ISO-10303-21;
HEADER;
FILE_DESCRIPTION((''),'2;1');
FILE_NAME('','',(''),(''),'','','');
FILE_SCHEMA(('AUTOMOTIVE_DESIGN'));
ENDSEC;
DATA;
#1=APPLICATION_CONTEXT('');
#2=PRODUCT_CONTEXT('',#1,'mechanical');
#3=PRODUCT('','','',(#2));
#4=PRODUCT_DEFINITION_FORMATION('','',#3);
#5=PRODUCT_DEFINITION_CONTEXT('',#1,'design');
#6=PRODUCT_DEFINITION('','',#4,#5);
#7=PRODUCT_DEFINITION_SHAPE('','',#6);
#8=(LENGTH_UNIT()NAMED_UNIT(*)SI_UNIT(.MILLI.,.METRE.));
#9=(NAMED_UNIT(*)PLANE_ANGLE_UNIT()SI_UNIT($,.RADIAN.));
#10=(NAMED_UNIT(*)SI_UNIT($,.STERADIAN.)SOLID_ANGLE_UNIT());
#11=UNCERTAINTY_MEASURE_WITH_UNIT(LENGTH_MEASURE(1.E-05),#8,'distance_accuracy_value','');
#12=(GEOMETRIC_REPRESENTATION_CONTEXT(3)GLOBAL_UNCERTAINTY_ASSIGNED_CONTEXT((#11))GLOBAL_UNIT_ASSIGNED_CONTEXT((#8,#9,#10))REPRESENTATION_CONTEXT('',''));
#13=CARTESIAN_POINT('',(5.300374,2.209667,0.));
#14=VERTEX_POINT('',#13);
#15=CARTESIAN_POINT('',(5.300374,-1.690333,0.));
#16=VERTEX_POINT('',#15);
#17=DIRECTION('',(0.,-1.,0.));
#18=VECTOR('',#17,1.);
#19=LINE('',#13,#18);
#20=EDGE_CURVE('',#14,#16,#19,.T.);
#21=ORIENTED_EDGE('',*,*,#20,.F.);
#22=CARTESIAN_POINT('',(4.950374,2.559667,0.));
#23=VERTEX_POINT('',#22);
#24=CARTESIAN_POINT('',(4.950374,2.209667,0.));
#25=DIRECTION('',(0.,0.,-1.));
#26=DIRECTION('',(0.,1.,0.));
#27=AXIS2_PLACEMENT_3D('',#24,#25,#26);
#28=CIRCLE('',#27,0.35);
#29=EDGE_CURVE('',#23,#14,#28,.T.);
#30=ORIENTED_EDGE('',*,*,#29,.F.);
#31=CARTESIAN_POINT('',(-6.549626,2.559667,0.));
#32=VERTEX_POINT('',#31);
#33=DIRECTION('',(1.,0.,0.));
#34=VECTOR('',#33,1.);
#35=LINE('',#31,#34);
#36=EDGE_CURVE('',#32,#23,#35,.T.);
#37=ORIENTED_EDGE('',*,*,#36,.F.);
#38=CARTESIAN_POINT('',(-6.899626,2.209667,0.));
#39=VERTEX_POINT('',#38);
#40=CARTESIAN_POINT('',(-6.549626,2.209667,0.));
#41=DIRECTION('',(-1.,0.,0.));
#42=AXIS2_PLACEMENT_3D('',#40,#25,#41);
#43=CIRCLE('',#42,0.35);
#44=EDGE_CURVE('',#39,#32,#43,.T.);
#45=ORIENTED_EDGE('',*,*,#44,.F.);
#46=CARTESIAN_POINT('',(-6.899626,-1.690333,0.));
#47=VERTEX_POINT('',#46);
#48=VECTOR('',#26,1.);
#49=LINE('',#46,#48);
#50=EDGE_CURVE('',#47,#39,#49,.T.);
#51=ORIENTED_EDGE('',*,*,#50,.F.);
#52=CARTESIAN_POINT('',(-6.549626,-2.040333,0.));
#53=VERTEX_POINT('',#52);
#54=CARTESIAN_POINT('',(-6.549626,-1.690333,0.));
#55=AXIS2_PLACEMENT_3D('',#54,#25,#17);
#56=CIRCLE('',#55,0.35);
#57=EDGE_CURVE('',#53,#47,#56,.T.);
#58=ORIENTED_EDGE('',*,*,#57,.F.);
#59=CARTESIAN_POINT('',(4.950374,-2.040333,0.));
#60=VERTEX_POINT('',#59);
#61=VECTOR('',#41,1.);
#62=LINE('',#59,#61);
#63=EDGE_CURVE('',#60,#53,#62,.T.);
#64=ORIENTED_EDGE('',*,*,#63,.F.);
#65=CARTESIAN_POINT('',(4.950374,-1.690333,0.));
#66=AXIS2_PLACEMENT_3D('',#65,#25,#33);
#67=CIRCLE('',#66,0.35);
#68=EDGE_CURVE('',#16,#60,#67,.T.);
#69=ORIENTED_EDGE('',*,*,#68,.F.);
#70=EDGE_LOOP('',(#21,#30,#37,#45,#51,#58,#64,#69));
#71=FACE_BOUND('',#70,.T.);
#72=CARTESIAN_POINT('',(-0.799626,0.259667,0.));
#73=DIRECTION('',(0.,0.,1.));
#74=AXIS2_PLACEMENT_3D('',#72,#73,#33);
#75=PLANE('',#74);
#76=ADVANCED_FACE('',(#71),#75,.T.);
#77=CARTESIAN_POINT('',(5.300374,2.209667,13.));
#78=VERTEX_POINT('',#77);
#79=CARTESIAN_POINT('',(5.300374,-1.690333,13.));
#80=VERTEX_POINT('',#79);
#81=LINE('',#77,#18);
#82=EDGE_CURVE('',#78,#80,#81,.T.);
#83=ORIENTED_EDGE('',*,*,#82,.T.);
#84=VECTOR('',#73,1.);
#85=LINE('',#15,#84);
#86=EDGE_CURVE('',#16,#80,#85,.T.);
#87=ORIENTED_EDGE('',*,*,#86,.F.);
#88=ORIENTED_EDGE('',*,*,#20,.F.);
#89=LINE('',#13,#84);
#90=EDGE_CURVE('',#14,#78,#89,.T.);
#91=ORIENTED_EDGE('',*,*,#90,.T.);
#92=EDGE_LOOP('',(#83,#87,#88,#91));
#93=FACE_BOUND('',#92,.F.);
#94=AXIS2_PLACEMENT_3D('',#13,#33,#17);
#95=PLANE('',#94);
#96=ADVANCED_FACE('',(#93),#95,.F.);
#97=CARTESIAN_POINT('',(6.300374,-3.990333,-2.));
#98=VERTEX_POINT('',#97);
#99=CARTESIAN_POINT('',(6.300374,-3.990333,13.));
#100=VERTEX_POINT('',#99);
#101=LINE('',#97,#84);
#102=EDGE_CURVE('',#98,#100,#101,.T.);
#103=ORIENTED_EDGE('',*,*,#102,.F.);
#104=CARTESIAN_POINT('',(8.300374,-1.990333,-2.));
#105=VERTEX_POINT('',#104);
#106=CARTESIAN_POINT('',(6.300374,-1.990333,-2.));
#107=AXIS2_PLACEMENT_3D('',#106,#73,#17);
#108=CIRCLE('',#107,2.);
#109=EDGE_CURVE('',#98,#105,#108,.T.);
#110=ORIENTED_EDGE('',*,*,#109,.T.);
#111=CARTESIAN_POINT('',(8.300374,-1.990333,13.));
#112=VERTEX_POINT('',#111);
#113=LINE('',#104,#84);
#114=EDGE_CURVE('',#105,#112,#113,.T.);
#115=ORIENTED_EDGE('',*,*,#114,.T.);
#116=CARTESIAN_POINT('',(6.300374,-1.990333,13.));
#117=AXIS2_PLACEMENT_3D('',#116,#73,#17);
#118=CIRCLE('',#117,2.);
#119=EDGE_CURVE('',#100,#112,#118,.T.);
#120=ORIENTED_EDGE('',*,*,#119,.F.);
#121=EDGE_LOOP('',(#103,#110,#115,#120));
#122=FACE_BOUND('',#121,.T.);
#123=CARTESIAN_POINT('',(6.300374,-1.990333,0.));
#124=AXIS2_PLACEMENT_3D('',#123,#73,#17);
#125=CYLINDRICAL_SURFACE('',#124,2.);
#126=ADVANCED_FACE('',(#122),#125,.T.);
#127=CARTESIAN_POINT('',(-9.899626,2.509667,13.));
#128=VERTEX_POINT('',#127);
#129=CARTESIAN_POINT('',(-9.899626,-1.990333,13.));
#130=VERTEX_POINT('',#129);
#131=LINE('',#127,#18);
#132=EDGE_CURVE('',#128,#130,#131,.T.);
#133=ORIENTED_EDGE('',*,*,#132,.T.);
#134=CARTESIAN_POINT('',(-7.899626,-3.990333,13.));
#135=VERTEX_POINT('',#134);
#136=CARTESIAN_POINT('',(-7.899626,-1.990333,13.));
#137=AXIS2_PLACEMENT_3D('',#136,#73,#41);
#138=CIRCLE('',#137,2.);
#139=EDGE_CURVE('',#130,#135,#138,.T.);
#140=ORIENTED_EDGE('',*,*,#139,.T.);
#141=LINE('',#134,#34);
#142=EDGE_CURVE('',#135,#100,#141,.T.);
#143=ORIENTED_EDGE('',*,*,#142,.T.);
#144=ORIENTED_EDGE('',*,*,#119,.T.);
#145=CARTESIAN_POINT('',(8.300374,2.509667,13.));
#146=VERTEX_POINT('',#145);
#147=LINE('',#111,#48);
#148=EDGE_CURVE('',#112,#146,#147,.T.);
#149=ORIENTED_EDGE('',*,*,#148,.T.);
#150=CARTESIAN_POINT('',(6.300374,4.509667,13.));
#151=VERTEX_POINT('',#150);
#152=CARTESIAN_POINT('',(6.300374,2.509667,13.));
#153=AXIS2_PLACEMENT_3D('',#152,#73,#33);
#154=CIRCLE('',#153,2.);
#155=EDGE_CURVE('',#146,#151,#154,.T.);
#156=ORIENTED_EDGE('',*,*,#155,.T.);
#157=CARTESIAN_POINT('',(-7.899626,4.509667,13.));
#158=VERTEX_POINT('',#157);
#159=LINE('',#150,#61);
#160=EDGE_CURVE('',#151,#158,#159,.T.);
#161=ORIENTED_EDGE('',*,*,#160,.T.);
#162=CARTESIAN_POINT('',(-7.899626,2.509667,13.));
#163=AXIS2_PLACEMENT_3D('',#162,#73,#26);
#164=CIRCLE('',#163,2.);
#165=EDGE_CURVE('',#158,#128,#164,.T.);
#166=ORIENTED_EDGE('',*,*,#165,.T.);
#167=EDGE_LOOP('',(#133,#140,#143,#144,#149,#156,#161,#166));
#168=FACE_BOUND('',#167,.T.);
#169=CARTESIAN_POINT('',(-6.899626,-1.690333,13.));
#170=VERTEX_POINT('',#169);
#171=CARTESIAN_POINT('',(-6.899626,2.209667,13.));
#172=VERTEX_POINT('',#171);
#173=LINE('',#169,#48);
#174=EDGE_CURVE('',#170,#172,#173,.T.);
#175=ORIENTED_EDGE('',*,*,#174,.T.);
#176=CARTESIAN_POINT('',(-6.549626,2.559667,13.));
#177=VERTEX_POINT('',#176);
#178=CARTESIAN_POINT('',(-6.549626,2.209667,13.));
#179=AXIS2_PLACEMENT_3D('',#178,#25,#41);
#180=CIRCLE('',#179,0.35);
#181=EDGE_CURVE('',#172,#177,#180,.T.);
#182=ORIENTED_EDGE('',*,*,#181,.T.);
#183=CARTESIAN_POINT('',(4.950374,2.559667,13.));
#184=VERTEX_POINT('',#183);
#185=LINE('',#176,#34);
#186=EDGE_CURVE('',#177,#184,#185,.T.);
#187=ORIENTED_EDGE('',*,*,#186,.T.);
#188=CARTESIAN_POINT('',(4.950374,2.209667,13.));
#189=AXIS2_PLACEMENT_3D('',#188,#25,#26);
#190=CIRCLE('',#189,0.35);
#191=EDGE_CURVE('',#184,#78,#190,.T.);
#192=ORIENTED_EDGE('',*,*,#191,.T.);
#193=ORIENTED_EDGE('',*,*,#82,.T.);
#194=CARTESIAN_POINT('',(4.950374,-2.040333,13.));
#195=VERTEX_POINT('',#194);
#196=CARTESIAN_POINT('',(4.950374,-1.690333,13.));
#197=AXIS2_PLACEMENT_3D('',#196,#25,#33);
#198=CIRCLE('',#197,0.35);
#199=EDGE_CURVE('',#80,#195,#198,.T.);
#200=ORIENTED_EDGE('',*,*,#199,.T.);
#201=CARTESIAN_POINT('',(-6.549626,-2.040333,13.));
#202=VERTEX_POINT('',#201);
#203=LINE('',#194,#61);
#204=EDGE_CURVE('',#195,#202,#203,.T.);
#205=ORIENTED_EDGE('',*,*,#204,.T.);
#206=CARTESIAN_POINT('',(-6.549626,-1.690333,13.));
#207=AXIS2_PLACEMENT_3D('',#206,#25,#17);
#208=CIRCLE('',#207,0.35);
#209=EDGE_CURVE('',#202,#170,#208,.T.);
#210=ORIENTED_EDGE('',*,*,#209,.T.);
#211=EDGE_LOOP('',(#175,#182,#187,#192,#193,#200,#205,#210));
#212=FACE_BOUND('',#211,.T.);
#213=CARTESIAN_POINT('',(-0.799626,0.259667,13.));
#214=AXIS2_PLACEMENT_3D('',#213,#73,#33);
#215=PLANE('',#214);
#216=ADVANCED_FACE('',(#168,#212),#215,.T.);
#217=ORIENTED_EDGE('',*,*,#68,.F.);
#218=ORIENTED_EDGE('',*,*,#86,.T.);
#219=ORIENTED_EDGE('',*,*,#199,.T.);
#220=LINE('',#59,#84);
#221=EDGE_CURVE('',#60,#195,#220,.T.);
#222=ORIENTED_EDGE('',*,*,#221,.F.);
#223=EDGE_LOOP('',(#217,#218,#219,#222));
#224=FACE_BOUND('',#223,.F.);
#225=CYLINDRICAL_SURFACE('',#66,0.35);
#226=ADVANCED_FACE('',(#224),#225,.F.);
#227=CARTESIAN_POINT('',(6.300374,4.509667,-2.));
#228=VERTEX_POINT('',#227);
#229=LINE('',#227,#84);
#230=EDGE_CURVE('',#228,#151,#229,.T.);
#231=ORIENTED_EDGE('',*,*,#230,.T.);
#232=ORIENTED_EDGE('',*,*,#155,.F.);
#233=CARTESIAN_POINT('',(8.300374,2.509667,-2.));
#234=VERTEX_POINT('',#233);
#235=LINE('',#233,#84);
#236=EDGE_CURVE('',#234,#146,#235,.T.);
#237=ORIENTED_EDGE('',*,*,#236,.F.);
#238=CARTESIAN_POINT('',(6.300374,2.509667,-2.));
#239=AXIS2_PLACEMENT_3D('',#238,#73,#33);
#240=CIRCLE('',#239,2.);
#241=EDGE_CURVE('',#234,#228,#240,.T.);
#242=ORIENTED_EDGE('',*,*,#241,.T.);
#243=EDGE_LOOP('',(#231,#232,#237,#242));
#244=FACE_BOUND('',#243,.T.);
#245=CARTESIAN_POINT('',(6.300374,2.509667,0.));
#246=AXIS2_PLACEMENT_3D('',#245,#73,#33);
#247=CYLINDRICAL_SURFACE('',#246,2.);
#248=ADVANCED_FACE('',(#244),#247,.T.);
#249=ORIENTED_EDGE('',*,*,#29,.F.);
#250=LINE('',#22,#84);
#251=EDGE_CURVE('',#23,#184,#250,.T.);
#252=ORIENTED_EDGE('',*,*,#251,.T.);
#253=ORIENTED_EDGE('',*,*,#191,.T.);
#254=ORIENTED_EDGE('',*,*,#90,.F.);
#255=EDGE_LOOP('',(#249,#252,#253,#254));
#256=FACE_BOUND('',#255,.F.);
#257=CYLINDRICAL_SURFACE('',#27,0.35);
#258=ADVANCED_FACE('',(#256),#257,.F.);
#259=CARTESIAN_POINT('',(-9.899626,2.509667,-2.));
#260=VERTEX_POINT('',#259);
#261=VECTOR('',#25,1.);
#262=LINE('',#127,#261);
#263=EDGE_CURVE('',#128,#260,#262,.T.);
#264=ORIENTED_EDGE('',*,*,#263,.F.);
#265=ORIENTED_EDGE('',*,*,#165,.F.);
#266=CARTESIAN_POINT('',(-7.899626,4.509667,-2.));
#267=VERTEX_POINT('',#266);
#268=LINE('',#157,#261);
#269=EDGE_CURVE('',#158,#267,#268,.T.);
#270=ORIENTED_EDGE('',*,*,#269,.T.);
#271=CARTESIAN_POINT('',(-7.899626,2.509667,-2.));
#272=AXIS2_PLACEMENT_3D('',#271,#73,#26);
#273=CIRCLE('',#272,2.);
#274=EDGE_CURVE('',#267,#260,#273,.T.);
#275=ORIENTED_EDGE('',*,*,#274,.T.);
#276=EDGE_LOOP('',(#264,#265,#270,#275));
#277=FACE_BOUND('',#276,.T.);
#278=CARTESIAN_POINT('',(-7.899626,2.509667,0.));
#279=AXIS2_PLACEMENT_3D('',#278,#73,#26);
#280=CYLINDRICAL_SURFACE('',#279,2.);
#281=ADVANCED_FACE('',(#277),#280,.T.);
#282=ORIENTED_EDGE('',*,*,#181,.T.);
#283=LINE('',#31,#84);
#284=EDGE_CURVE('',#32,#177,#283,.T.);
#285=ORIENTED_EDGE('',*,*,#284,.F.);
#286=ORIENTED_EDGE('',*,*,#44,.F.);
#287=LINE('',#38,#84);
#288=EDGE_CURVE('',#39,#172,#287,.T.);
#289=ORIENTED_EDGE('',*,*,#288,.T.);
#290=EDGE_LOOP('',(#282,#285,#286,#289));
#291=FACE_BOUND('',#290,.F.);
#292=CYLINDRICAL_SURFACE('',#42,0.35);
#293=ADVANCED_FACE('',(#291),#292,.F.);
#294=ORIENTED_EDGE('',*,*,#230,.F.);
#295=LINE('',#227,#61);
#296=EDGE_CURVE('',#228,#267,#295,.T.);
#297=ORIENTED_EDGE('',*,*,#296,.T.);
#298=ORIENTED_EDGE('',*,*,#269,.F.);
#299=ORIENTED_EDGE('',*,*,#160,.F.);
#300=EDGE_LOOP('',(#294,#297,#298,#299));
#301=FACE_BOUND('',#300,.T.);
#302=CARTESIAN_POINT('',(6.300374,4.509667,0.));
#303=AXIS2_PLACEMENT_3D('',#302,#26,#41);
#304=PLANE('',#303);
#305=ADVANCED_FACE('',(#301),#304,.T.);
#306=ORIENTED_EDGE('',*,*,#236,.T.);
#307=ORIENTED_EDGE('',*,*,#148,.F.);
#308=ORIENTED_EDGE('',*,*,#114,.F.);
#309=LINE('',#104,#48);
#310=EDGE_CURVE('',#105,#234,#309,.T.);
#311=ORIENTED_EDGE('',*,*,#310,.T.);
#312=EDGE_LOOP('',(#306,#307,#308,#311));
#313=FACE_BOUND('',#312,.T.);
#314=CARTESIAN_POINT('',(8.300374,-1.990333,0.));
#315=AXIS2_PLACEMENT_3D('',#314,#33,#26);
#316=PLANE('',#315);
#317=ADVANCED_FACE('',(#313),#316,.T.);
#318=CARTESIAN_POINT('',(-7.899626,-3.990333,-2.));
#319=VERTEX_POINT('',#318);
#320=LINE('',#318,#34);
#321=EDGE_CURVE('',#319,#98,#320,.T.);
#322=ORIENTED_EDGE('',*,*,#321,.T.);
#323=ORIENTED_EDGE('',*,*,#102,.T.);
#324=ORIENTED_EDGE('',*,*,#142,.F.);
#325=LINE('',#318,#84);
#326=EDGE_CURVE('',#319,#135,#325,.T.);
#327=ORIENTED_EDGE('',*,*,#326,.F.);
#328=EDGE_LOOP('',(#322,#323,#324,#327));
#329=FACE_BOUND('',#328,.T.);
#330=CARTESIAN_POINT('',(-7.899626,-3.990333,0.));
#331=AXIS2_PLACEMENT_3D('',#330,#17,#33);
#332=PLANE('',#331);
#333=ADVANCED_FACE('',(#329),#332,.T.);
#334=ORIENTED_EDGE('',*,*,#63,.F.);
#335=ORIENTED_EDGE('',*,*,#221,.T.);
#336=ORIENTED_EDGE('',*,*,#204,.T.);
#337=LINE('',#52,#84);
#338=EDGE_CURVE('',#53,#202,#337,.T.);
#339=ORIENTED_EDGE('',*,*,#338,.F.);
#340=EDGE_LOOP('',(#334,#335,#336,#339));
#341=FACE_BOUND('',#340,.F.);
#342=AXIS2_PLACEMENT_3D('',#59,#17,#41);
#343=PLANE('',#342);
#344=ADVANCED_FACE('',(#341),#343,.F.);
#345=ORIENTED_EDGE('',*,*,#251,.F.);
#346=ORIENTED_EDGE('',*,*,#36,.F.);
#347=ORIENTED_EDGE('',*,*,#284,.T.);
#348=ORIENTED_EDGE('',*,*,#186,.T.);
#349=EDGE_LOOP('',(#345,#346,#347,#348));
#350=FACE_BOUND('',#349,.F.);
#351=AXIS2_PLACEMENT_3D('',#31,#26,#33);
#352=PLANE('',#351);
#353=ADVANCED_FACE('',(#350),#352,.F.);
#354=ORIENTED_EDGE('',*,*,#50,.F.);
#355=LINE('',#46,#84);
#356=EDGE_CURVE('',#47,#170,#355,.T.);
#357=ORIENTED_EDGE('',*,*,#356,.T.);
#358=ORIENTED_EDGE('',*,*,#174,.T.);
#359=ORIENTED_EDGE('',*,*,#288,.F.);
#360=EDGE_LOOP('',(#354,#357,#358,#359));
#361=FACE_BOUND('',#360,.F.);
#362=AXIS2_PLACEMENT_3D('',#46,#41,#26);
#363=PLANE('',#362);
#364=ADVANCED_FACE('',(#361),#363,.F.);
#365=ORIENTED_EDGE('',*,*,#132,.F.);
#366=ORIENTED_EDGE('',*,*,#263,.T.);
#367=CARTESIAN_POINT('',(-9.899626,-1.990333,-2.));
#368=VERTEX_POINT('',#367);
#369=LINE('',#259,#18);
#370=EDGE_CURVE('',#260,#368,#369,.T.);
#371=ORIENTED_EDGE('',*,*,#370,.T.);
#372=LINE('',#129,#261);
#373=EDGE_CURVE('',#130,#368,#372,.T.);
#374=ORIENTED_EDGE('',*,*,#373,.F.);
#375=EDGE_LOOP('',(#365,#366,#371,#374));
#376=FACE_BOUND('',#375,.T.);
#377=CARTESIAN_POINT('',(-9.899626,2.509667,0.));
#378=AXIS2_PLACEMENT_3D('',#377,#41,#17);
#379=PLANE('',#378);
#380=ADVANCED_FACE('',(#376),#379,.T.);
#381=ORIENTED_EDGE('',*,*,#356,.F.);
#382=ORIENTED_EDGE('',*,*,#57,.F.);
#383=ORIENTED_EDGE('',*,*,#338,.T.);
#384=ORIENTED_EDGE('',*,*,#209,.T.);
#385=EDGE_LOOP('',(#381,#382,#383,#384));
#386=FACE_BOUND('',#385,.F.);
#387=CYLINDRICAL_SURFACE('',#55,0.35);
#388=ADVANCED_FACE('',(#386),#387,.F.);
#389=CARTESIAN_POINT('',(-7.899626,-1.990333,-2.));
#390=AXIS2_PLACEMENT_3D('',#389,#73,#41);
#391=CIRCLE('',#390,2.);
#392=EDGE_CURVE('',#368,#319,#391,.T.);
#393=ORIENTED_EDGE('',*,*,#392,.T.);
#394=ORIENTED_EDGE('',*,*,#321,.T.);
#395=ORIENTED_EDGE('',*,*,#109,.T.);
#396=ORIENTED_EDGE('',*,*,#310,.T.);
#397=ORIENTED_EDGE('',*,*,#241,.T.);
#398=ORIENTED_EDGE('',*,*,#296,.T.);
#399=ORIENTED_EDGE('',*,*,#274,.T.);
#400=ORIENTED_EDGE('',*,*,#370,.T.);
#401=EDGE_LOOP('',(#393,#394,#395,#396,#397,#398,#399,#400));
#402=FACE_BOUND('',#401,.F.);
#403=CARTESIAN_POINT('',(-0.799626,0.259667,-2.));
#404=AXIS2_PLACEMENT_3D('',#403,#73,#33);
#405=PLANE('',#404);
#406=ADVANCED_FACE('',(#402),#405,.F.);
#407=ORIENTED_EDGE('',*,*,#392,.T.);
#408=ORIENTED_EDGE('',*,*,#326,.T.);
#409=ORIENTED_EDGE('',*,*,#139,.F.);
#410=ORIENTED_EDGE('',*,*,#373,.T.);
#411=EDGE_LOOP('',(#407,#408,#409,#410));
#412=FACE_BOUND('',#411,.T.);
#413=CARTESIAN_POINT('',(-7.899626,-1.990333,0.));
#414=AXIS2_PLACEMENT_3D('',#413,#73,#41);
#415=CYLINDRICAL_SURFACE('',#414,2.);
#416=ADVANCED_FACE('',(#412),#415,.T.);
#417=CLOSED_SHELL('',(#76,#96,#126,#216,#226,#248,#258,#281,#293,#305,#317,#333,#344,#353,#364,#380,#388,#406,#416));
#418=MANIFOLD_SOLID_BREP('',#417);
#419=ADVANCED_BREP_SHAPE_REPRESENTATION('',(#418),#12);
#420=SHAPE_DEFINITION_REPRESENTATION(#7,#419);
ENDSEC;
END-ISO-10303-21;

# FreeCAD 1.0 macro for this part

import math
import FreeCAD as App
import Part
import Sketcher
Q = App.Units.Quantity

doc = App.newDocument("Part")
body = doc.addObject("PartDesign::Body", "Body")

# Sketch on XY plane
sketch1 = body.newObject("Sketcher::SketchObject", "Sketch")
sketch1.AttachmentSupport = (doc.getObject("XY_Plane"), [""])
sketch1.MapMode = "FlatFace"
sketch1.addGeometry([
    Part.ArcOfCircle(Part.Circle(App.Vector(-7.899626, -1.990333, 0), App.Vector(0, 0, 1), 2), math.radians(180), math.radians(270)),  # 0
    Part.LineSegment(App.Vector(-7.899626, -3.990333, 0), App.Vector(6.300374, -3.990333, 0)),  # 1
    Part.ArcOfCircle(Part.Circle(App.Vector(6.300374, -1.990333, 0), App.Vector(0, 0, 1), 2), math.radians(-90), math.radians(0)),  # 2
    Part.LineSegment(App.Vector(8.300374, -1.990333, 0), App.Vector(8.300374, 2.509667, 0)),  # 3
    Part.ArcOfCircle(Part.Circle(App.Vector(6.300374, 2.509667, 0), App.Vector(0, 0, 1), 2), math.radians(0), math.radians(90)),  # 4
    Part.LineSegment(App.Vector(6.300374, 4.509667, 0), App.Vector(-7.899626, 4.509667, 0)),  # 5
    Part.ArcOfCircle(Part.Circle(App.Vector(-7.899626, 2.509667, 0), App.Vector(0, 0, 1), 2), math.radians(90), math.radians(180)),  # 6
    Part.LineSegment(App.Vector(-9.899626, 2.509667, 0), App.Vector(-9.899626, -1.990333, 0)),  # 7
    Part.ArcOfCircle(Part.Circle(App.Vector(4.950374, -1.690333, 0), App.Vector(0, 0, 1), 0.35), math.radians(-90), math.radians(0)),  # 8
    Part.LineSegment(App.Vector(4.950374, -2.040333, 0), App.Vector(-6.549626, -2.040333, 0)),  # 9
    Part.ArcOfCircle(Part.Circle(App.Vector(-6.549626, -1.690333, 0), App.Vector(0, 0, 1), 0.35), math.radians(180), math.radians(270)),  # 10
    Part.LineSegment(App.Vector(-6.899626, -1.690333, 0), App.Vector(-6.899626, 2.209667, 0)),  # 11
    Part.ArcOfCircle(Part.Circle(App.Vector(-6.549626, 2.209667, 0), App.Vector(0, 0, 1), 0.35), math.radians(90), math.radians(180)),  # 12
    Part.LineSegment(App.Vector(-6.549626, 2.559667, 0), App.Vector(4.950374, 2.559667, 0)),  # 13
    Part.ArcOfCircle(Part.Circle(App.Vector(4.950374, 2.209667, 0), App.Vector(0, 0, 1), 0.35), math.radians(0), math.radians(90)),  # 14
    Part.LineSegment(App.Vector(5.300374, 2.209667, 0), App.Vector(5.300374, -1.690333, 0)),  # 15
], False)
sketch1.addConstraint([
    Sketcher.Constraint("Tangent", 0, 2, 1, 1),
    Sketcher.Constraint("Tangent", 1, 2, 2, 1),
    Sketcher.Constraint("Tangent", 2, 2, 3, 1),
    Sketcher.Constraint("Tangent", 3, 2, 4, 1),
    Sketcher.Constraint("Tangent", 4, 2, 5, 1),
    Sketcher.Constraint("Tangent", 5, 2, 6, 1),
    Sketcher.Constraint("Tangent", 6, 2, 7, 1),
    Sketcher.Constraint("Tangent", 7, 2, 0, 1),
    Sketcher.Constraint("Tangent", 8, 1, 9, 1),
    Sketcher.Constraint("Tangent", 9, 2, 10, 2),
    Sketcher.Constraint("Tangent", 10, 1, 11, 1),
    Sketcher.Constraint("Tangent", 11, 2, 12, 2),
    Sketcher.Constraint("Tangent", 12, 1, 13, 1),
    Sketcher.Constraint("Tangent", 13, 2, 14, 2),
    Sketcher.Constraint("Tangent", 14, 1, 15, 1),
    Sketcher.Constraint("Tangent", 15, 2, 8, 2),
    Sketcher.Constraint("Horizontal", 1),
    Sketcher.Constraint("Vertical", 3),
    Sketcher.Constraint("Horizontal", 5),
    Sketcher.Constraint("Vertical", 7),
    Sketcher.Constraint("Horizontal", 9),
    Sketcher.Constraint("Vertical", 11),
    Sketcher.Constraint("Horizontal", 13),
    Sketcher.Constraint("Vertical", 15),
    Sketcher.Constraint("Equal", 0, 2),
    Sketcher.Constraint("Equal", 2, 4),
    Sketcher.Constraint("Equal", 4, 6),
    Sketcher.Constraint("Equal", 8, 10),
    Sketcher.Constraint("Equal", 10, 12),
    Sketcher.Constraint("Equal", 12, 14),
    Sketcher.Constraint("Radius", 0, Q("2 mm")),
    Sketcher.Constraint("Radius", 8, Q("0.35 mm")),
    Sketcher.Constraint("DistanceX", 1, 1, 1, 2, Q("14.2 mm")),
    Sketcher.Constraint("DistanceX", 9, 2, 9, 1, Q("11.5 mm")),
    Sketcher.Constraint("DistanceY", 3, 1, 3, 2, Q("4.5 mm")),
    Sketcher.Constraint("DistanceY", 11, 1, 11, 2, Q("3.9 mm")),
    Sketcher.Constraint("DistanceX", 0, 3, 10, 1, Q("1 mm")),
    Sketcher.Constraint("DistanceY", 2, 3, 8, 3, Q("0.3 mm")),
    Sketcher.Constraint("DistanceX", 0, 3, -1, 1, Q("7.899626 mm")),
    Sketcher.Constraint("DistanceY", 0, 3, -1, 1, Q("1.990333 mm")),
])
pad1 = body.newObject("PartDesign::Pad", "Pad")
pad1.Profile = sketch1
pad1.Length = 13

# Sketch on XY plane
sketch2 = body.newObject("Sketcher::SketchObject", "Sketch001")
sketch2.AttachmentSupport = (doc.getObject("XY_Plane"), [""])
sketch2.MapMode = "FlatFace"
sketch2.addGeometry([
    Part.ArcOfCircle(Part.Circle(App.Vector(-7.899626, -1.990333, 0), App.Vector(0, 0, 1), 2), math.radians(180), math.radians(270)),  # 0
    Part.LineSegment(App.Vector(-7.899626, -3.990333, 0), App.Vector(6.300374, -3.990333, 0)),  # 1
    Part.ArcOfCircle(Part.Circle(App.Vector(6.300374, -1.990333, 0), App.Vector(0, 0, 1), 2), math.radians(-90), math.radians(0)),  # 2
    Part.LineSegment(App.Vector(8.300374, -1.990333, 0), App.Vector(8.300374, 2.509667, 0)),  # 3
    Part.ArcOfCircle(Part.Circle(App.Vector(6.300374, 2.509667, 0), App.Vector(0, 0, 1), 2), math.radians(0), math.radians(90)),  # 4
    Part.LineSegment(App.Vector(6.300374, 4.509667, 0), App.Vector(-7.899626, 4.509667, 0)),  # 5
    Part.ArcOfCircle(Part.Circle(App.Vector(-7.899626, 2.509667, 0), App.Vector(0, 0, 1), 2), math.radians(90), math.radians(180)),  # 6
    Part.LineSegment(App.Vector(-9.899626, 2.509667, 0), App.Vector(-9.899626, -1.990333, 0)),  # 7
], False)
sketch2.addConstraint([
    Sketcher.Constraint("Tangent", 0, 2, 1, 1),
    Sketcher.Constraint("Tangent", 1, 2, 2, 1),
    Sketcher.Constraint("Tangent", 2, 2, 3, 1),
    Sketcher.Constraint("Tangent", 3, 2, 4, 1),
    Sketcher.Constraint("Tangent", 4, 2, 5, 1),
    Sketcher.Constraint("Tangent", 5, 2, 6, 1),
    Sketcher.Constraint("Tangent", 6, 2, 7, 1),
    Sketcher.Constraint("Tangent", 7, 2, 0, 1),
    Sketcher.Constraint("Horizontal", 1),
    Sketcher.Constraint("Vertical", 3),
    Sketcher.Constraint("Horizontal", 5),
    Sketcher.Constraint("Vertical", 7),
    Sketcher.Constraint("Equal", 0, 2),
    Sketcher.Constraint("Equal", 2, 4),
    Sketcher.Constraint("Equal", 4, 6),
    Sketcher.Constraint("Radius", 0, Q("2 mm")),
    Sketcher.Constraint("DistanceX", 1, 1, 1, 2, Q("14.2 mm")),
    Sketcher.Constraint("DistanceY", 3, 1, 3, 2, Q("4.5 mm")),
    Sketcher.Constraint("DistanceX", 0, 3, -1, 1, Q("7.899626 mm")),
    Sketcher.Constraint("DistanceY", 0, 3, -1, 1, Q("1.990333 mm")),
])
pad2 = body.newObject("PartDesign::Pad", "Pad001")
pad2.Profile = sketch2
pad2.Length = 2
pad2.Reversed = True

doc.recompute()
